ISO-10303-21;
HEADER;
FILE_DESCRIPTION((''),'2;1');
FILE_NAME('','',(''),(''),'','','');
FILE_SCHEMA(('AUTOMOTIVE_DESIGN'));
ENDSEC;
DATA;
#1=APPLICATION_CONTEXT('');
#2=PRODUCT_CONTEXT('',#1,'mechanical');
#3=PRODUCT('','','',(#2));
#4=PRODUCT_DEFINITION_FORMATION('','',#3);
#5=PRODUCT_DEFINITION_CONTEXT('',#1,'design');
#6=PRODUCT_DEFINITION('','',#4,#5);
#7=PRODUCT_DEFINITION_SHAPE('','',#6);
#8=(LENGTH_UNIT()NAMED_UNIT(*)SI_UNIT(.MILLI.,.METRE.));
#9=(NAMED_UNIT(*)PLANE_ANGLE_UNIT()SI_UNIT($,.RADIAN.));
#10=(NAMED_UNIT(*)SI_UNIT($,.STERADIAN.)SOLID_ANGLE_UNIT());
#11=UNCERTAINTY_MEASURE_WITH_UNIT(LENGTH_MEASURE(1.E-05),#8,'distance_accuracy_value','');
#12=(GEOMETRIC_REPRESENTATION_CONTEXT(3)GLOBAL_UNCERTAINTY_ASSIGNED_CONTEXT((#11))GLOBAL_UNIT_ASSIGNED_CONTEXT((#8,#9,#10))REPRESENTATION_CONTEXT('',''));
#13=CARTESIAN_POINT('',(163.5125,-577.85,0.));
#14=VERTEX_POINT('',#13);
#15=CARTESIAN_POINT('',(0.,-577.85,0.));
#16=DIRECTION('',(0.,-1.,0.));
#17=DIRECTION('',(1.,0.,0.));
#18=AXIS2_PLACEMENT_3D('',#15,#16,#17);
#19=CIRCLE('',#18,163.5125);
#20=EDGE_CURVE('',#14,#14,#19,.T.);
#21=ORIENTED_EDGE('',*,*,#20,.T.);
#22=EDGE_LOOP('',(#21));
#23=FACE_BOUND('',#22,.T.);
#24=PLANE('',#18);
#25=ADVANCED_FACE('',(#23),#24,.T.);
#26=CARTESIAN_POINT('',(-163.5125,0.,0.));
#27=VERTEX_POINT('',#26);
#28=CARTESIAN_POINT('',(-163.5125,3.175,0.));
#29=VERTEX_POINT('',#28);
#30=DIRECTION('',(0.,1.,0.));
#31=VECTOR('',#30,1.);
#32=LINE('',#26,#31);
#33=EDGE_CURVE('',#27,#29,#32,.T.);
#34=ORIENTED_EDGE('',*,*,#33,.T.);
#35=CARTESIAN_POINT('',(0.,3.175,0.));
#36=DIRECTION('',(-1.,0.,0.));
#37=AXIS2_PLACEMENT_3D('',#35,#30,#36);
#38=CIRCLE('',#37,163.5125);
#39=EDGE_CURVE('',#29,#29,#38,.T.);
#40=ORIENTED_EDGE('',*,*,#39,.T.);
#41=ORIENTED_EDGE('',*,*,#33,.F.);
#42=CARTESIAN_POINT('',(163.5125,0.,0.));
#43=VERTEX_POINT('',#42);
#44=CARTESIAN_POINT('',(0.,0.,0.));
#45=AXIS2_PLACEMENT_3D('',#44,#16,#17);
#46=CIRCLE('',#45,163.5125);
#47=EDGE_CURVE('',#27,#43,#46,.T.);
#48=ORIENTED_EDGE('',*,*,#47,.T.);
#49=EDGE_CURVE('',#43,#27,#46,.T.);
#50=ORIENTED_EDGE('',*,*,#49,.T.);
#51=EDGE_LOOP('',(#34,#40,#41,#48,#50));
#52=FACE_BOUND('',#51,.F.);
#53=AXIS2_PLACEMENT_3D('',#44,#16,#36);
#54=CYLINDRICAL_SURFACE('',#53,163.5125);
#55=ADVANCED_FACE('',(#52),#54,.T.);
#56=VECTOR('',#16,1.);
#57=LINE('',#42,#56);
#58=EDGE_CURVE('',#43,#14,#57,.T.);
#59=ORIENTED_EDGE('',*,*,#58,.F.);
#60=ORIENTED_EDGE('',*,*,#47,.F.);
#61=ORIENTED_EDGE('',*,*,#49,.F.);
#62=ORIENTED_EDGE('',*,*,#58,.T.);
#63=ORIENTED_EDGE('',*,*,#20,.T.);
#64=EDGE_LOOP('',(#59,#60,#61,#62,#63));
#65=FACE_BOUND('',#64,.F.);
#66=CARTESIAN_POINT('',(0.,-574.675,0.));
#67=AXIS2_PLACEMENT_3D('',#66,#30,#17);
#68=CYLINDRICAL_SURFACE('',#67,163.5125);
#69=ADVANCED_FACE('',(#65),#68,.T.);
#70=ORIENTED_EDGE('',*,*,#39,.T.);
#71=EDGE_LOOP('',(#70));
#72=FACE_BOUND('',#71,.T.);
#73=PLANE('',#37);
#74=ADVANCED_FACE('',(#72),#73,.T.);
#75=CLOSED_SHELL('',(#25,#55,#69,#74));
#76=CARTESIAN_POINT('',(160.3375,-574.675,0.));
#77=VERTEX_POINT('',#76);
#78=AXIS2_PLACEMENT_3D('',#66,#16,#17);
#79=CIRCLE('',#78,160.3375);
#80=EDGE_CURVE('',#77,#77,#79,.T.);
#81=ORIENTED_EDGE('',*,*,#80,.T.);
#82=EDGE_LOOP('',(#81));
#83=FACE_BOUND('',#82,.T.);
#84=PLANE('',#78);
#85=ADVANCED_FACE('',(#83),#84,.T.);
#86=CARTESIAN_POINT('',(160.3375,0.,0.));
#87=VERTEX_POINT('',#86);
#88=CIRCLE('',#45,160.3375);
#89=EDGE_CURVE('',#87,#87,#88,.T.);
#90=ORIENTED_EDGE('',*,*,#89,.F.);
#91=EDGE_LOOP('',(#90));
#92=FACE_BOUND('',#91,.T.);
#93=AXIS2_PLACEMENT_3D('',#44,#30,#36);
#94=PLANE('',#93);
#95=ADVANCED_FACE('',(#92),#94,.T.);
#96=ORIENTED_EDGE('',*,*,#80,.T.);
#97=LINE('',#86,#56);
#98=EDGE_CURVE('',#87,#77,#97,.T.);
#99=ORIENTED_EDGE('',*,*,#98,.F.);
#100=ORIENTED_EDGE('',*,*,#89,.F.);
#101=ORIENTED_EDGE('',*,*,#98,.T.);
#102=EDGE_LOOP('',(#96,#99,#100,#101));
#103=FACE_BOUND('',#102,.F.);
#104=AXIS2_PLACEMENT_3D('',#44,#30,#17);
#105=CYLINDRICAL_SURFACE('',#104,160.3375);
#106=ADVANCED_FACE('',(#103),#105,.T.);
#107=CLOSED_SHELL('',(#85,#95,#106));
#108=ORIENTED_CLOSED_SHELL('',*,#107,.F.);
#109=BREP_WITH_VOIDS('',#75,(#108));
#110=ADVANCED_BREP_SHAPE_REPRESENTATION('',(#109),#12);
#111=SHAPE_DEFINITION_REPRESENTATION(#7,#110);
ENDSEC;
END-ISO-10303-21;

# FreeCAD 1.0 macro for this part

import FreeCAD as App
import Part
import Sketcher
Q = App.Units.Quantity

doc = App.newDocument("Part")
body = doc.addObject("PartDesign::Body", "Body")

# Sketch on XZ plane
sketch1 = body.newObject("Sketcher::SketchObject", "Sketch")
sketch1.AttachmentSupport = (doc.getObject("XZ_Plane"), [""])
sketch1.MapMode = "FlatFace"
sketch1.addGeometry([
    Part.Circle(App.Vector(0, 0, 0), App.Vector(0, 0, 1), 164),
    Part.Circle(App.Vector(0, 0, 0), App.Vector(0, 0, 1), 160),
], False)
sketch1.addConstraint([
    Sketcher.Constraint("Coincident", 0, 3, -1, 1),
    Sketcher.Constraint("Coincident", 1, 3, -1, 1),
    Sketcher.Constraint("Diameter", 0, Q("12.875 in")),
    Sketcher.Constraint("Diameter", 1, Q("12.625 in")),
])
pad1 = body.newObject("PartDesign::Pad", "Pad")
pad1.Profile = sketch1
pad1.Length = Q("22.625 in")

# Sketch on XZ plane
sketch2 = body.newObject("Sketcher::SketchObject", "Sketch001")
sketch2.AttachmentSupport = (doc.getObject("XZ_Plane"), [""])
sketch2.MapMode = "FlatFace"
sketch2.AttachmentOffset = App.Placement(App.Vector(0, 0, 22.625 * 25.4), App.Rotation())
sketch2.addGeometry(Part.Circle(App.Vector(0, 0, 0), App.Vector(0, 0, 1), 164), False)
sketch2.addConstraint([
    Sketcher.Constraint("Coincident", 0, 3, -1, 1),
    Sketcher.Constraint("Diameter", 0, Q("12.875 in")),
])
pad2 = body.newObject("PartDesign::Pad", "Pad001")
pad2.Profile = sketch2
pad2.Length = Q("0.125 in")

# Sketch on XZ plane
sketch3 = body.newObject("Sketcher::SketchObject", "Sketch002")
sketch3.AttachmentSupport = (doc.getObject("XZ_Plane"), [""])
sketch3.MapMode = "FlatFace"
sketch3.addGeometry(Part.Circle(App.Vector(0, 0, 0), App.Vector(0, 0, 1), 164), False)
sketch3.addConstraint([
    Sketcher.Constraint("Coincident", 0, 3, -1, 1),
    Sketcher.Constraint("Diameter", 0, Q("12.875 in")),
])
pad3 = body.newObject("PartDesign::Pad", "Pad002")
pad3.Profile = sketch3
pad3.Length = Q("0.125 in")
pad3.Reversed = True

doc.recompute()
